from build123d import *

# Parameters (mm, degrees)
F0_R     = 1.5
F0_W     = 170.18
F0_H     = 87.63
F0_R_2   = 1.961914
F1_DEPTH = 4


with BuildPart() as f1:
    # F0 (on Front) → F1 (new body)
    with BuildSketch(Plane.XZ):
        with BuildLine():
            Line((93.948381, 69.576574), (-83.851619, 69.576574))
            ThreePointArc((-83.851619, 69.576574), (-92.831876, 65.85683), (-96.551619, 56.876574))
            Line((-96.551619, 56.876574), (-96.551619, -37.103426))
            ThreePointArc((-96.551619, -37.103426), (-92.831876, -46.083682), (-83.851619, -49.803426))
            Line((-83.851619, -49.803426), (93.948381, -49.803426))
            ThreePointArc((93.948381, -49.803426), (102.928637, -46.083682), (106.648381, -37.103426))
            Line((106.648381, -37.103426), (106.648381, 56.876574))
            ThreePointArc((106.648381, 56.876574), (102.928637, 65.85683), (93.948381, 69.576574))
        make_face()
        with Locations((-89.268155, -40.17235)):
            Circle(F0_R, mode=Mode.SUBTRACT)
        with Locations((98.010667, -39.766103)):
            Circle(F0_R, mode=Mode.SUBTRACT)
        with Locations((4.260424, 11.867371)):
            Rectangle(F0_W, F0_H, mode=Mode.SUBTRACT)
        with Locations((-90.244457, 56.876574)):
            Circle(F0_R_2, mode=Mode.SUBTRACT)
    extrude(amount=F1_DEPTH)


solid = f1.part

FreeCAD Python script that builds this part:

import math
import FreeCAD as App
import Part
import Sketcher
Q = App.Units.Quantity

doc = App.newDocument("Part")
params = doc.addObject("Spreadsheet::Sheet", "Params")
for row, (alias, value) in enumerate([
    ("sketch1_radius", "0.4999999 in"),
    ("sketch1_width", "7 in"),
    ("sketch1_width2", "6.7 in"),
    ("sketch1_height", "3.7 in"),
    ("sketch1_height2", "3.45 in"),
    ("pad1_length", "4 mm"),
], start=1):
    params.set(f"A{row}", alias)
    params.set(f"B{row}", "=" + value)
    params.setAlias(f"B{row}", alias)

body = doc.addObject("PartDesign::Body", "Body")

# Sketch on XZ plane
sketch1 = body.newObject("Sketcher::SketchObject", "Sketch")
sketch1.AttachmentSupport = (doc.getObject("XZ_Plane"), [""])
sketch1.MapMode = "FlatFace"
sketch1.addGeometry([
    Part.LineSegment(App.Vector(93.9, 69.6, 0), App.Vector(-83.9, 69.6, 0)),  # 0
    Part.ArcOfCircle(Part.Circle(App.Vector(-83.9, 56.9, 0), App.Vector(0, 0, 1), 12.7), math.radians(90), math.radians(180)),  # 1
    Part.LineSegment(App.Vector(-96.6, 56.9, 0), App.Vector(-96.6, -37.1, 0)),  # 2
    Part.ArcOfCircle(Part.Circle(App.Vector(-83.9, -37.1, 0), App.Vector(0, 0, 1), 12.7), math.radians(180), math.radians(270)),  # 3
    Part.LineSegment(App.Vector(-83.9, -49.8, 0), App.Vector(93.9, -49.8, 0)),  # 4
    Part.ArcOfCircle(Part.Circle(App.Vector(93.9, -37.1, 0), App.Vector(0, 0, 1), 12.7), math.radians(-90), math.radians(0)),  # 5
    Part.LineSegment(App.Vector(106.6, -37.1, 0), App.Vector(106.6, 56.9, 0)),  # 6
    Part.ArcOfCircle(Part.Circle(App.Vector(93.9, 56.9, 0), App.Vector(0, 0, 1), 12.7), math.radians(0), math.radians(90)),  # 7
    Part.Circle(App.Vector(-89.3, -40.2, 0), App.Vector(0, 0, 1), 1.5),  # 8
    Part.Circle(App.Vector(98, -39.8, 0), App.Vector(0, 0, 1), 1.5),  # 9
    Part.Circle(App.Vector(-90.2, 56.9, 0), App.Vector(0, 0, 1), 2),  # 10
    Part.LineSegment(App.Vector(89.4, -31.9, 0), App.Vector(-80.8, -31.9, 0)),  # 11
    Part.LineSegment(App.Vector(-80.8, -31.9, 0), App.Vector(-80.8, 55.7, 0)),  # 12
    Part.LineSegment(App.Vector(-80.8, 55.7, 0), App.Vector(89.4, 55.7, 0)),  # 13
    Part.LineSegment(App.Vector(89.4, 55.7, 0), App.Vector(89.4, -31.9, 0)),  # 14
], False)
sketch1.addConstraint([
    Sketcher.Constraint("Tangent", 0, 2, 1, 1),
    Sketcher.Constraint("Tangent", 1, 2, 2, 1),
    Sketcher.Constraint("Tangent", 2, 2, 3, 1),
    Sketcher.Constraint("Tangent", 3, 2, 4, 1),
    Sketcher.Constraint("Tangent", 4, 2, 5, 1),
    Sketcher.Constraint("Tangent", 5, 2, 6, 1),
    Sketcher.Constraint("Tangent", 6, 2, 7, 1),
    Sketcher.Constraint("Tangent", 7, 2, 0, 1),
    Sketcher.Constraint("Coincident", 11, 2, 12, 1),
    Sketcher.Constraint("Coincident", 12, 2, 13, 1),
    Sketcher.Constraint("Coincident", 13, 2, 14, 1),
    Sketcher.Constraint("Coincident", 14, 2, 11, 1),
    Sketcher.Constraint("Horizontal", 0),
    Sketcher.Constraint("Vertical", 2),
    Sketcher.Constraint("Horizontal", 4),
    Sketcher.Constraint("Vertical", 6),
    Sketcher.Constraint("Horizontal", 11),
    Sketcher.Constraint("Vertical", 12),
    Sketcher.Constraint("Horizontal", 13),
    Sketcher.Constraint("Vertical", 14),
    Sketcher.Constraint("Equal", 1, 3),
    Sketcher.Constraint("Equal", 3, 5),
    Sketcher.Constraint("Equal", 5, 7),
    Sketcher.Constraint("Equal", 8, 9),
    Sketcher.Constraint("Horizontal", 7, 3, 10, 3),
    Sketcher.Constraint("Radius", 1, Q("0.4999999 in")),
    Sketcher.Constraint("DistanceX", 0, 2, 0, 1, Q("7 in")),
    Sketcher.Constraint("DistanceX", 11, 2, 11, 1, Q("6.7 in")),
    Sketcher.Constraint("DistanceY", 2, 2, 2, 1, Q("3.7 in")),
    Sketcher.Constraint("DistanceY", 12, 1, 12, 2, Q("3.45 in")),
    Sketcher.Constraint("Diameter", 8, 3.0),
    Sketcher.Constraint("Diameter", 10, 3.923828),
    Sketcher.Constraint("DistanceY", 3, 3, 11, 2, 5.155798),
    Sketcher.Constraint("DistanceX", 1, 3, -1, 1, 83.85162),
    Sketcher.Constraint("DistanceY", 8, 3, -1, 1, 40.17235),
    Sketcher.Constraint("DistanceY", 11, 2, -1, 1, 31.947629),
    Sketcher.Constraint("DistanceX", 8, 3, 9, 3, 187.278822),
    Sketcher.Constraint("DistanceY", 9, 3, 1, 3, 96.642678),
    Sketcher.Constraint("DistanceX", 1, 2, 10, 3, 6.307162),
    Sketcher.Constraint("DistanceX", 8, 3, 11, 2, 8.438579),
    Sketcher.Constraint("DistanceX", 10, 3, 12, 2, 9.414881),
])
sketch1.setExpression("Constraints[25]", "Params.sketch1_radius")
sketch1.setExpression("Constraints[26]", "Params.sketch1_width")
sketch1.setExpression("Constraints[27]", "Params.sketch1_width2")
sketch1.setExpression("Constraints[28]", "Params.sketch1_height")
sketch1.setExpression("Constraints[29]", "Params.sketch1_height2")
pad1 = body.newObject("PartDesign::Pad", "Pad")
pad1.Profile = sketch1
pad1.setExpression("Length", "Params.pad1_length")

doc.recompute()
